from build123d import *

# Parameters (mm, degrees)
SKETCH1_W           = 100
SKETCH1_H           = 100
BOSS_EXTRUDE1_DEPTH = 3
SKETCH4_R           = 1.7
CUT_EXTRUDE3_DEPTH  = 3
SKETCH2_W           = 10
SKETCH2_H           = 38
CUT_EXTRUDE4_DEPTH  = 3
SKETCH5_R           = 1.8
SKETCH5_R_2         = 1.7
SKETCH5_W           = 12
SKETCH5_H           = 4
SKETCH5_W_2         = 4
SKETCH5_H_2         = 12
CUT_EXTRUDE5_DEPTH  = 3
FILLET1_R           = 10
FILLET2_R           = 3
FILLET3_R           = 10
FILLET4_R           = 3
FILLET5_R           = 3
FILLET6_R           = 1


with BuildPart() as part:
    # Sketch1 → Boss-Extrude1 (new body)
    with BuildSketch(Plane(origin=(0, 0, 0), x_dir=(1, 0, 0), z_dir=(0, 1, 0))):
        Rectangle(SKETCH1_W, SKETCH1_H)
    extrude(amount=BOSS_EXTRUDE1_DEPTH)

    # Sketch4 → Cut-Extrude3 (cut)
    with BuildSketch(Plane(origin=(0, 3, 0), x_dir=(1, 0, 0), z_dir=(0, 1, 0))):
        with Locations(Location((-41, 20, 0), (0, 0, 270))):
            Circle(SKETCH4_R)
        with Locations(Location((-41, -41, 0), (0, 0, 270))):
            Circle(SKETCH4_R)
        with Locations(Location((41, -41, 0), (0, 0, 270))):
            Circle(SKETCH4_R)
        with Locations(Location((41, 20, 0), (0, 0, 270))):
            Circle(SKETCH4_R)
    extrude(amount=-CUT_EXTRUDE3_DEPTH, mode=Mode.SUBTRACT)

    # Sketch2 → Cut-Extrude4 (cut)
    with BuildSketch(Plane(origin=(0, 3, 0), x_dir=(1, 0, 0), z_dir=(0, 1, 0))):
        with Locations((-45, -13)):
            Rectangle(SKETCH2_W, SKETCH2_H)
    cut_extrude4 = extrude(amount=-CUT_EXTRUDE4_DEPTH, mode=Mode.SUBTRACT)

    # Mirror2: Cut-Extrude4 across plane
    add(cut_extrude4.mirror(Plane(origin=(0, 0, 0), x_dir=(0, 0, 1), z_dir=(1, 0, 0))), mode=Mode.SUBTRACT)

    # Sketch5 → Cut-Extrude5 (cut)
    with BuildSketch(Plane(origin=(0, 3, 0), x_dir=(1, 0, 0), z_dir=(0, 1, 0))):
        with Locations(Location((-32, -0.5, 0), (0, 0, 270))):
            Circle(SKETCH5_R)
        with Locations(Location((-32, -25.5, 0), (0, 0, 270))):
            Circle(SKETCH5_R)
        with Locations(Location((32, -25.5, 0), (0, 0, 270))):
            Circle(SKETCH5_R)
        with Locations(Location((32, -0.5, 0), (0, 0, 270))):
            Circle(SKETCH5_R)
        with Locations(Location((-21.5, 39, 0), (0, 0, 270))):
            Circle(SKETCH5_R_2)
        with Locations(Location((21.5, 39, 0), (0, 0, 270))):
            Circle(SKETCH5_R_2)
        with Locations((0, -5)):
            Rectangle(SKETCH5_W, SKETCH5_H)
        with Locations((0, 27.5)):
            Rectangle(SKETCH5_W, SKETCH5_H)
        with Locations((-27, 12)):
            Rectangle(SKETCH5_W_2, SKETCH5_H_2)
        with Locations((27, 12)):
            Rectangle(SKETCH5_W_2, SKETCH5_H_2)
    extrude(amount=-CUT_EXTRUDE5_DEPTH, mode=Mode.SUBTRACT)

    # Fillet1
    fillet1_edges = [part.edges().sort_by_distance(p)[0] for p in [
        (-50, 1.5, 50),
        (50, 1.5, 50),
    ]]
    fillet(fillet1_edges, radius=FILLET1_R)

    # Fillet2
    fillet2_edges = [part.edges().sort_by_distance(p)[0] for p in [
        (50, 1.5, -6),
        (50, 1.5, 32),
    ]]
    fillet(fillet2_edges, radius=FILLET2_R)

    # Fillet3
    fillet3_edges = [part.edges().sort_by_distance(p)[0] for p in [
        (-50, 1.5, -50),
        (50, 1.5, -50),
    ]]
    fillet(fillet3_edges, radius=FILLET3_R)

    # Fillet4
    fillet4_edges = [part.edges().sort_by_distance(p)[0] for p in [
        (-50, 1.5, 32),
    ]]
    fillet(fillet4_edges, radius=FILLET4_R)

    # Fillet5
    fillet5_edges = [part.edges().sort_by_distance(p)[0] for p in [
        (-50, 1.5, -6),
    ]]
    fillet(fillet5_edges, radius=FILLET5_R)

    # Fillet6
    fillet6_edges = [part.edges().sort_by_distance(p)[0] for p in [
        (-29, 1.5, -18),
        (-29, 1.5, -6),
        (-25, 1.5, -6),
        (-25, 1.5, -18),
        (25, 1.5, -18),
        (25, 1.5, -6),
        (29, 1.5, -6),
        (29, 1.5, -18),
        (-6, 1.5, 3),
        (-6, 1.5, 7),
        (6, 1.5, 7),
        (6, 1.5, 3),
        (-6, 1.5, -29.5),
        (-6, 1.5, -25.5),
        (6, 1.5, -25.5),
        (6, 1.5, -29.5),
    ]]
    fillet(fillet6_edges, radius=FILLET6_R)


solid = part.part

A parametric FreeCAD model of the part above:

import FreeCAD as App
import Part
import Sketcher
Q = App.Units.Quantity


def edges_at(feature, points):
    """Names of the edges that pass closest to the given points."""
    edges = feature.Shape.Edges
    near = lambda p: min(range(len(edges)), key=lambda i: edges[i].distToShape(Part.Vertex(*p))[0])
    return sorted({f"Edge{near(p) + 1}" for p in points})


def add_polygon(sketch, points):
    """Adds a closed chain of lines whose ends are joined by coincident constraints."""
    first, n = sketch.GeometryCount, len(points)
    for a, b in zip(points, points[1:] + points[:1]):
        sketch.addGeometry(Part.LineSegment(App.Vector(*a, 0), App.Vector(*b, 0)), False)
    for i in range(n):
        sketch.addConstraint(Sketcher.Constraint("Coincident", first + i, 2, first + (i + 1) % n, 1))

doc = App.newDocument("Part")
body = doc.addObject("PartDesign::Body", "Body")

sketch1 = body.newObject("Sketcher::SketchObject", "Sketch")
sketch1.AttachmentSupport = (doc.getObject("XZ_Plane"), [""])
sketch1.MapMode = "FlatFace"
add_polygon(sketch1, [(-50, -50), (-50, 50), (50, 50), (50, -50)])
sketch1.addConstraint([
    Sketcher.Constraint("Vertical", 0),
    Sketcher.Constraint("Horizontal", 1),
    Sketcher.Constraint("Vertical", 2),
    Sketcher.Constraint("Horizontal", 3),
    Sketcher.Constraint("Symmetric", 0, 2, 2, 2, -1, 1),
    Sketcher.Constraint("Equal", 3, 0),
    Sketcher.Constraint("DistanceX", 1, 1, 1, 2, Q("100 mm")),
])
pad1 = body.newObject("PartDesign::Pad", "Pad")
pad1.Profile = sketch1
pad1.Length = 3
pad1.Reversed = True

sketch2 = body.newObject("Sketcher::SketchObject", "Sketch001")
sketch2.AttachmentSupport = (doc.getObject("XZ_Plane"), [""])
sketch2.MapMode = "FlatFace"
sketch2.AttachmentOffset = App.Placement(App.Vector(0, 0, -3), App.Rotation())
sketch2.addGeometry([
    Part.Circle(App.Vector(-41, -20, 0), App.Vector(0, 0, 1), 1.7),
    Part.Circle(App.Vector(-41, 41, 0), App.Vector(0, 0, 1), 1.7),
    Part.Circle(App.Vector(41, 41, 0), App.Vector(0, 0, 1), 1.7),
    Part.Circle(App.Vector(41, -20, 0), App.Vector(0, 0, 1), 1.7),
], False)
sketch2.addConstraint([
    Sketcher.Constraint("Equal", 0, 1),
    Sketcher.Constraint("Equal", 1, 2),
    Sketcher.Constraint("Equal", 2, 3),
    Sketcher.Constraint("Symmetric", 1, 3, 2, 3, -2),
    Sketcher.Constraint("Symmetric", 0, 3, 3, 3, -2),
    Sketcher.Constraint("Vertical", 0, 3, 1, 3),
    Sketcher.Constraint("Diameter", 0, Q("3.4 mm")),
    Sketcher.Constraint("DistanceX", 0, 3, -1, 1, Q("41 mm")),
    Sketcher.Constraint("DistanceY", 0, 3, -1, 1, Q("20 mm")),
    Sketcher.Constraint("DistanceY", -1, 1, 1, 3, Q("41 mm")),
])
pocket1 = body.newObject("PartDesign::Pocket", "Pocket")
pocket1.Profile = sketch2
pocket1.Length = 3
pocket1.Reversed = True

sketch3 = body.newObject("Sketcher::SketchObject", "Sketch002")
sketch3.AttachmentSupport = (doc.getObject("XZ_Plane"), [""])
sketch3.MapMode = "FlatFace"
sketch3.AttachmentOffset = App.Placement(App.Vector(0, 0, -3), App.Rotation())
add_polygon(sketch3, [(-50, -6), (-50, 32), (-40, 32), (-40, -6)])
sketch3.addConstraint([
    Sketcher.Constraint("Vertical", 0),
    Sketcher.Constraint("Horizontal", 1),
    Sketcher.Constraint("Vertical", 2),
    Sketcher.Constraint("Horizontal", 3),
    Sketcher.Constraint("DistanceX", 1, 1, 1, 2, Q("10 mm")),
    Sketcher.Constraint("DistanceY", 0, 1, 0, 2, Q("38 mm")),
    Sketcher.Constraint("DistanceX", 0, 2, -1, 1, Q("50 mm")),
    Sketcher.Constraint("DistanceY", -1, 1, 0, 2, Q("32 mm")),
])
pocket2 = body.newObject("PartDesign::Pocket", "Pocket001")
pocket2.Profile = sketch3
pocket2.Length = 3
pocket2.Reversed = True
doc.recompute()

mirrored = body.newObject("PartDesign::Mirrored", "Mirrored")
mirrored.Originals = [pocket2]
mirrored.MirrorPlane = (doc.getObject("YZ_Plane"), [""])
body.Tip = mirrored

sketch4 = body.newObject("Sketcher::SketchObject", "Sketch003")
sketch4.AttachmentSupport = (doc.getObject("XZ_Plane"), [""])
sketch4.MapMode = "FlatFace"
sketch4.AttachmentOffset = App.Placement(App.Vector(0, 0, -3), App.Rotation())
sketch4.addGeometry(Part.Circle(App.Vector(-32, 0.5, 0), App.Vector(0, 0, 1), 1.8), False)
sketch4.addGeometry(Part.Circle(App.Vector(-32, 25.5, 0), App.Vector(0, 0, 1), 1.8), False)
sketch4.addGeometry(Part.Circle(App.Vector(32, 25.5, 0), App.Vector(0, 0, 1), 1.8), False)
sketch4.addGeometry(Part.Circle(App.Vector(32, 0.5, 0), App.Vector(0, 0, 1), 1.8), False)
sketch4.addGeometry(Part.Circle(App.Vector(-21.5, -39, 0), App.Vector(0, 0, 1), 1.7), False)
sketch4.addGeometry(Part.Circle(App.Vector(21.5, -39, 0), App.Vector(0, 0, 1), 1.7), False)
add_polygon(sketch4, [(-6, 3), (-6, 7), (6, 7), (6, 3)])
add_polygon(sketch4, [(-6, -29.5), (-6, -25.5), (6, -25.5), (6, -29.5)])
add_polygon(sketch4, [(-29, -18), (-29, -6), (-25, -6), (-25, -18)])
add_polygon(sketch4, [(25, -18), (25, -6), (29, -6), (29, -18)])
sketch4.addConstraint([
    Sketcher.Constraint("Vertical", 6),
    Sketcher.Constraint("Horizontal", 7),
    Sketcher.Constraint("Vertical", 8),
    Sketcher.Constraint("Horizontal", 9),
    Sketcher.Constraint("Vertical", 10),
    Sketcher.Constraint("Horizontal", 11),
    Sketcher.Constraint("Vertical", 12),
    Sketcher.Constraint("Horizontal", 13),
    Sketcher.Constraint("Vertical", 14),
    Sketcher.Constraint("Horizontal", 15),
    Sketcher.Constraint("Vertical", 16),
    Sketcher.Constraint("Horizontal", 17),
    Sketcher.Constraint("Vertical", 18),
    Sketcher.Constraint("Horizontal", 19),
    Sketcher.Constraint("Vertical", 20),
    Sketcher.Constraint("Horizontal", 21),
    Sketcher.Constraint("Equal", 0, 1),
    Sketcher.Constraint("Equal", 1, 2),
    Sketcher.Constraint("Equal", 2, 3),
    Sketcher.Constraint("Equal", 4, 5),
    Sketcher.Constraint("Symmetric", 1, 3, 2, 3, -2),
    Sketcher.Constraint("Symmetric", 0, 3, 3, 3, -2),
    Sketcher.Constraint("Symmetric", 4, 3, 5, 3, -2),
    Sketcher.Constraint("Symmetric", 15, 2, 18, 2, -2),
    Sketcher.Constraint("Symmetric", 17, 2, 20, 2, -2),
    Sketcher.Constraint("Vertical", 0, 3, 1, 3),
    Sketcher.Constraint("Vertical", 9, 2, 10, 2),
    Sketcher.Constraint("Vertical", 8, 2, 11, 2),
    Sketcher.Constraint("Equal", 21, 6),
    Sketcher.Constraint("Equal", 8, 10),
    Sketcher.Constraint("Equal", 13, 14),
    Sketcher.Constraint("Diameter", 0, Q("3.6 mm")),
    Sketcher.Constraint("Diameter", 4, Q("3.4 mm")),
    Sketcher.Constraint("DistanceX", 7, 1, 7, 2, Q("12 mm")),
    Sketcher.Constraint("DistanceX", 15, 1, 15, 2, Q("4 mm")),
    Sketcher.Constraint("DistanceX", 0, 3, -1, 1, Q("32 mm")),
    Sketcher.Constraint("DistanceY", 4, 3, -1, 1, Q("39 mm")),
    Sketcher.Constraint("DistanceX", 6, 2, -1, 1, Q("6 mm")),
    Sketcher.Constraint("DistanceY", -1, 1, 6, 2, Q("7 mm")),
    Sketcher.Constraint("DistanceX", 14, 2, -1, 1, Q("29 mm")),
    Sketcher.Constraint("DistanceY", 14, 2, -1, 1, Q("6 mm")),
    Sketcher.Constraint("DistanceY", 0, 3, 1, 3, Q("25 mm")),
    Sketcher.Constraint("DistanceX", 4, 3, 5, 3, Q("43 mm")),
    Sketcher.Constraint("DistanceY", -1, 1, 0, 3, Q("0.5 mm")),
    Sketcher.Constraint("DistanceY", 10, 2, -1, 1, Q("25.5 mm")),
])
pocket3 = body.newObject("PartDesign::Pocket", "Pocket002")
pocket3.Profile = sketch4
pocket3.Length = 3
pocket3.Reversed = True
doc.recompute()

fillet = body.newObject("PartDesign::Fillet", "Fillet")
fillet.Base = (pocket3, edges_at(pocket3, [(-50, 1.5, 50), (50, 1.5, 50)]))
fillet.Radius = 10
doc.recompute()

fillet2 = body.newObject("PartDesign::Fillet", "Fillet001")
fillet2.Base = (fillet, edges_at(fillet, [(50, 1.5, -6), (50, 1.5, 32)]))
fillet2.Radius = 3
doc.recompute()

fillet3 = body.newObject("PartDesign::Fillet", "Fillet002")
fillet3.Base = (fillet2, edges_at(fillet2, [(-50, 1.5, -50), (50, 1.5, -50)]))
fillet3.Radius = 10
doc.recompute()

fillet4 = body.newObject("PartDesign::Fillet", "Fillet003")
fillet4.Base = (fillet3, edges_at(fillet3, [(-50, 1.5, 32)]))
fillet4.Radius = 3
doc.recompute()

fillet5 = body.newObject("PartDesign::Fillet", "Fillet004")
fillet5.Base = (fillet4, edges_at(fillet4, [(-50, 1.5, -6)]))
fillet5.Radius = 3
doc.recompute()

fillet6 = body.newObject("PartDesign::Fillet", "Fillet005")
fillet6.Base = (fillet5, edges_at(fillet5, [
    (-29, 1.5, -18),
    (-29, 1.5, -6),
    (-25, 1.5, -6),
    (-25, 1.5, -18),
    (25, 1.5, -18),
    (25, 1.5, -6),
    (29, 1.5, -6),
    (29, 1.5, -18),
    (-6, 1.5, 3),
    (-6, 1.5, 7),
    (6, 1.5, 7),
    (6, 1.5, 3),
    (-6, 1.5, -29.5),
    (-6, 1.5, -25.5),
    (6, 1.5, -25.5),
    (6, 1.5, -29.5),
]))
fillet6.Radius = 1

doc.recompute()
